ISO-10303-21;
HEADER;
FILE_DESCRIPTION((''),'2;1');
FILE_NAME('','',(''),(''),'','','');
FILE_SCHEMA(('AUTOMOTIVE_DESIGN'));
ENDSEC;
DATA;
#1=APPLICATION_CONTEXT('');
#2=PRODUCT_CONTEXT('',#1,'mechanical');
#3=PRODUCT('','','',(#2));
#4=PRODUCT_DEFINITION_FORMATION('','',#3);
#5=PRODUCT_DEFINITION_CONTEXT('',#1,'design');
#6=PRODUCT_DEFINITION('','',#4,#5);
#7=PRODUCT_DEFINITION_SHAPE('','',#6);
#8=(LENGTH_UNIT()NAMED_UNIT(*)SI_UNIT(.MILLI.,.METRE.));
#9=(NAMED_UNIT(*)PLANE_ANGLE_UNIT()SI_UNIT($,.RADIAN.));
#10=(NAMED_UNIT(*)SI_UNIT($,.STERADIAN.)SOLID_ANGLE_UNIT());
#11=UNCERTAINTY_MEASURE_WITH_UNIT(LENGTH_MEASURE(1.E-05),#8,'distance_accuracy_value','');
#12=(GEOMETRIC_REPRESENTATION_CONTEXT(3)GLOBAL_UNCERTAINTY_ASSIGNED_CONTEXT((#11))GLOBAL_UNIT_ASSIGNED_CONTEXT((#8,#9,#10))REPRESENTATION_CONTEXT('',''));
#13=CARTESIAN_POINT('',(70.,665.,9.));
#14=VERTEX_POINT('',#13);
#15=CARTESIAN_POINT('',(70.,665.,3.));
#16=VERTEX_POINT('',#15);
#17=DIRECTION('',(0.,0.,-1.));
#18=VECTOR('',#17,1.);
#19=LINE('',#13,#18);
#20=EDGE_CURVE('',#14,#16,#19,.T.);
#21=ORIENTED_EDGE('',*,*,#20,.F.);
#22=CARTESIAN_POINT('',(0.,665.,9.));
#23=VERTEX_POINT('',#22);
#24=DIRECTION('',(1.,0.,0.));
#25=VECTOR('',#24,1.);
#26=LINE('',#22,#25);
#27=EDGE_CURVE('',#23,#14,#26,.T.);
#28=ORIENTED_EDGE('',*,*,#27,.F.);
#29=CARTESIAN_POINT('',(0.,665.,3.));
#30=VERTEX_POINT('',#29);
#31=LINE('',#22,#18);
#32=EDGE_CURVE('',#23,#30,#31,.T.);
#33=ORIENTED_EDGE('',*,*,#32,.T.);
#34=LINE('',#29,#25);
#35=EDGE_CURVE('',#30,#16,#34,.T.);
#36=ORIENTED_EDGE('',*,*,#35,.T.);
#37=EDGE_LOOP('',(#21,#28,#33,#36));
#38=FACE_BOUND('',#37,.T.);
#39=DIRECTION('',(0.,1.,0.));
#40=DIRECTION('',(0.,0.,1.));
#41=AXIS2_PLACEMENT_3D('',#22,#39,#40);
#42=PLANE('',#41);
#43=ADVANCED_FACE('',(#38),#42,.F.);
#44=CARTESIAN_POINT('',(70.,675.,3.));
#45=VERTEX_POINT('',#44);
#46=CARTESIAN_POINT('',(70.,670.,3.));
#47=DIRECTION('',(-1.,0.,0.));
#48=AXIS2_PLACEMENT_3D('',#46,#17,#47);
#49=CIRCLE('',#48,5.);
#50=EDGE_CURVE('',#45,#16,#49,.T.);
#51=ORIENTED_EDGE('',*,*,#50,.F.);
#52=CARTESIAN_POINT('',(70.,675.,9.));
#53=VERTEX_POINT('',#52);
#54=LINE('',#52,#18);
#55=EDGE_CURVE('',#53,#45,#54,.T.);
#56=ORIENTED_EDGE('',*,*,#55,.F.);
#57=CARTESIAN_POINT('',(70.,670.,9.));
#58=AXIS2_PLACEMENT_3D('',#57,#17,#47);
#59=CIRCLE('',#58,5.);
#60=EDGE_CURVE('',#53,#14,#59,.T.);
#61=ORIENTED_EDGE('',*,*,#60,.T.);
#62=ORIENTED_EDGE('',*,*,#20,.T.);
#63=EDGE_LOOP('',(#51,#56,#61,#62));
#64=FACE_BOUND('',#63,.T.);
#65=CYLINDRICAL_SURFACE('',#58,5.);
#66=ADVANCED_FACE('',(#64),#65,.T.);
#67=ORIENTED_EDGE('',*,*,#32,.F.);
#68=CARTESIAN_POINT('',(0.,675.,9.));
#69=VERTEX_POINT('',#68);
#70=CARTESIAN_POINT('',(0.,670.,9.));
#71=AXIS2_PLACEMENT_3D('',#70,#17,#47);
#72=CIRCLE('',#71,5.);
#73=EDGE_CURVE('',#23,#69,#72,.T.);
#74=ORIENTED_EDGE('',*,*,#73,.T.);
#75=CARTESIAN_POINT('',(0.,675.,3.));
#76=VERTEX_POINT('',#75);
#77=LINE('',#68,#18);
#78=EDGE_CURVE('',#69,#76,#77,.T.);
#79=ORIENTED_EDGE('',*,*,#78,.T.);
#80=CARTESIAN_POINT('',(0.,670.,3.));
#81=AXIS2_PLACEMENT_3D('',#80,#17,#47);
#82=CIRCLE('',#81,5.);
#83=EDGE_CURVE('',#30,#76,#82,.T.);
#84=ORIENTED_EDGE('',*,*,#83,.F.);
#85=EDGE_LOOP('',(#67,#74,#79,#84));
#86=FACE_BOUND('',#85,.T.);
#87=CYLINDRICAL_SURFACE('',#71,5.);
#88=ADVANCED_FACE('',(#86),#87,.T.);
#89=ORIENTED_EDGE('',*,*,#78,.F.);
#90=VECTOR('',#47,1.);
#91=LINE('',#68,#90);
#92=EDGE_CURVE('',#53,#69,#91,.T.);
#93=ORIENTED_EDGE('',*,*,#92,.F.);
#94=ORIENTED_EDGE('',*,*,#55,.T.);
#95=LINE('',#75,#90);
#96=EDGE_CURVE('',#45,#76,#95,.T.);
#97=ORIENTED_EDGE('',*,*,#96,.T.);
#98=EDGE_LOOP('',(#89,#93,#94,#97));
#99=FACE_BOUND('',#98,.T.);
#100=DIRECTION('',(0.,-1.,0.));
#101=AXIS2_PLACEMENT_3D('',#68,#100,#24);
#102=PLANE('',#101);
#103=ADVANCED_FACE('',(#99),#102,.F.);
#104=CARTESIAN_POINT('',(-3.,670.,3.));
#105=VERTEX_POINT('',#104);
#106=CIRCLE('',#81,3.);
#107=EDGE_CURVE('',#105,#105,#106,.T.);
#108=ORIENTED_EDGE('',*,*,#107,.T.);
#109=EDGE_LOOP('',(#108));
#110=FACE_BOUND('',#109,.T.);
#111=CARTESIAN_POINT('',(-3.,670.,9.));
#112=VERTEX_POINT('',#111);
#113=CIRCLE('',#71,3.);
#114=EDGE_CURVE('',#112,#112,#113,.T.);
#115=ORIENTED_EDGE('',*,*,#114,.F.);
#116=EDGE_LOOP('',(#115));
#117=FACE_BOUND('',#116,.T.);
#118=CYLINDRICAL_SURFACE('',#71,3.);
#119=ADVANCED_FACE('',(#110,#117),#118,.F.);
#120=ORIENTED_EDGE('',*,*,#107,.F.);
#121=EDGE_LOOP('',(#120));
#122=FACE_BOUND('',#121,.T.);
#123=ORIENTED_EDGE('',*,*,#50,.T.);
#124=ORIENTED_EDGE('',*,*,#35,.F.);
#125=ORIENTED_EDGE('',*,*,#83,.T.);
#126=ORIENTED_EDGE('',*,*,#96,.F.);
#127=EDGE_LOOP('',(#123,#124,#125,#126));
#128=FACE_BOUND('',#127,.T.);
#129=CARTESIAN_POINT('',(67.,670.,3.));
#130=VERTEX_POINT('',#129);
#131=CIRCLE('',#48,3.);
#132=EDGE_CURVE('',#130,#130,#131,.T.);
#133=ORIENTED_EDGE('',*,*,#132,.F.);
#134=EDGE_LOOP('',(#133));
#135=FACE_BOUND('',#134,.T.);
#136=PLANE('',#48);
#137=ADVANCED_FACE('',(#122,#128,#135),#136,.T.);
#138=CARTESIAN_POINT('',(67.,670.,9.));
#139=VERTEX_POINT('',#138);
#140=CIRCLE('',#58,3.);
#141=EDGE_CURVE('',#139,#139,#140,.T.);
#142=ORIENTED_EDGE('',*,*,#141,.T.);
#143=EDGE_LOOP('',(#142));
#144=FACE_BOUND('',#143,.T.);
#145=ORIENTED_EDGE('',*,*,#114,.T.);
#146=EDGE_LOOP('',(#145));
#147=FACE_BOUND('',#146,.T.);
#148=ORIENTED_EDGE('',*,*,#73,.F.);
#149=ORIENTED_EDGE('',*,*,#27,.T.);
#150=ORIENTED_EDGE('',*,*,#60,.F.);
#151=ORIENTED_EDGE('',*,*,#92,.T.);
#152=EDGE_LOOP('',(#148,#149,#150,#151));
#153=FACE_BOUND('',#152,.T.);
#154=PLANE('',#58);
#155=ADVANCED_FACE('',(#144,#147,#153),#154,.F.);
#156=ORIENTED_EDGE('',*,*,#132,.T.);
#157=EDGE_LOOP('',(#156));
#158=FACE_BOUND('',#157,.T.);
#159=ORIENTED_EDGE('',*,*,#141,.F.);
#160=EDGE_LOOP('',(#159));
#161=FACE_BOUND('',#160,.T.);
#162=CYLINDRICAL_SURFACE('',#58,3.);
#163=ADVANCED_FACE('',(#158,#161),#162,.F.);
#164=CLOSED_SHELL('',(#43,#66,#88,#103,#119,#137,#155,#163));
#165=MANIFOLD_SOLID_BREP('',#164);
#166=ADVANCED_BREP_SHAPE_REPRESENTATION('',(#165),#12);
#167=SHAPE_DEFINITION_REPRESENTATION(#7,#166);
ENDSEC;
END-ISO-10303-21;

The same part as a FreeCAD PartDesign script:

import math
import FreeCAD as App
import Part
import Sketcher

doc = App.newDocument("Part")
params = doc.addObject("Spreadsheet::Sheet", "Params")
for row, (alias, value) in enumerate([
    ("sketch1_diameter", "6 mm"),
    ("sketch1_radius", "5 mm"),
    ("sketch1_width", "70 mm"),
    ("pad1_length", "6 mm"),
], start=1):
    params.set(f"A{row}", alias)
    params.set(f"B{row}", "=" + value)
    params.setAlias(f"B{row}", alias)

body = doc.addObject("PartDesign::Body", "Body")

# Sketch on XY plane
sketch1 = body.newObject("Sketcher::SketchObject", "Sketch")
sketch1.AttachmentSupport = (doc.getObject("XY_Plane"), [""])
sketch1.MapMode = "FlatFace"
sketch1.AttachmentOffset = App.Placement(App.Vector(0, 0, 3), App.Rotation())
sketch1.addGeometry([
    Part.LineSegment(App.Vector(70, 675, 0), App.Vector(0, 675, 0)),  # 0
    Part.ArcOfCircle(Part.Circle(App.Vector(0, 670, 0), App.Vector(0, 0, 1), 5), math.radians(90), math.radians(270)),  # 1
    Part.LineSegment(App.Vector(0, 665, 0), App.Vector(70, 665, 0)),  # 2
    Part.ArcOfCircle(Part.Circle(App.Vector(70, 670, 0), App.Vector(0, 0, 1), 5), math.radians(-90), math.radians(90)),  # 3
    Part.Circle(App.Vector(70, 670, 0), App.Vector(0, 0, 1), 3),  # 4
    Part.Circle(App.Vector(0, 670, 0), App.Vector(0, 0, 1), 3),  # 5
], False)
sketch1.addConstraint([
    Sketcher.Constraint("Tangent", 0, 2, 1, 1),
    Sketcher.Constraint("Tangent", 1, 2, 2, 1),
    Sketcher.Constraint("Tangent", 2, 2, 3, 1),
    Sketcher.Constraint("Tangent", 3, 2, 0, 1),
    Sketcher.Constraint("Horizontal", 0),
    Sketcher.Constraint("Horizontal", 2),
    Sketcher.Constraint("Coincident", 4, 3, 3, 3),
    Sketcher.Constraint("Coincident", 5, 3, 1, 3),
    Sketcher.Constraint("Equal", 4, 5),
    Sketcher.Constraint("PointOnObject", 1, 3, -2),
    Sketcher.Constraint("Diameter", 4, 6.0),
    Sketcher.Constraint("Radius", 1, 5.0),
    Sketcher.Constraint("DistanceX", 0, 2, 0, 1, 70.0),
    Sketcher.Constraint("DistanceY", -1, 1, 1, 3, 670.0),
])
sketch1.setExpression("Constraints[10]", "Params.sketch1_diameter")
sketch1.setExpression("Constraints[11]", "Params.sketch1_radius")
sketch1.setExpression("Constraints[12]", "Params.sketch1_width")
pad1 = body.newObject("PartDesign::Pad", "Pad")
pad1.Profile = sketch1
pad1.setExpression("Length", "Params.pad1_length")

doc.recompute()
